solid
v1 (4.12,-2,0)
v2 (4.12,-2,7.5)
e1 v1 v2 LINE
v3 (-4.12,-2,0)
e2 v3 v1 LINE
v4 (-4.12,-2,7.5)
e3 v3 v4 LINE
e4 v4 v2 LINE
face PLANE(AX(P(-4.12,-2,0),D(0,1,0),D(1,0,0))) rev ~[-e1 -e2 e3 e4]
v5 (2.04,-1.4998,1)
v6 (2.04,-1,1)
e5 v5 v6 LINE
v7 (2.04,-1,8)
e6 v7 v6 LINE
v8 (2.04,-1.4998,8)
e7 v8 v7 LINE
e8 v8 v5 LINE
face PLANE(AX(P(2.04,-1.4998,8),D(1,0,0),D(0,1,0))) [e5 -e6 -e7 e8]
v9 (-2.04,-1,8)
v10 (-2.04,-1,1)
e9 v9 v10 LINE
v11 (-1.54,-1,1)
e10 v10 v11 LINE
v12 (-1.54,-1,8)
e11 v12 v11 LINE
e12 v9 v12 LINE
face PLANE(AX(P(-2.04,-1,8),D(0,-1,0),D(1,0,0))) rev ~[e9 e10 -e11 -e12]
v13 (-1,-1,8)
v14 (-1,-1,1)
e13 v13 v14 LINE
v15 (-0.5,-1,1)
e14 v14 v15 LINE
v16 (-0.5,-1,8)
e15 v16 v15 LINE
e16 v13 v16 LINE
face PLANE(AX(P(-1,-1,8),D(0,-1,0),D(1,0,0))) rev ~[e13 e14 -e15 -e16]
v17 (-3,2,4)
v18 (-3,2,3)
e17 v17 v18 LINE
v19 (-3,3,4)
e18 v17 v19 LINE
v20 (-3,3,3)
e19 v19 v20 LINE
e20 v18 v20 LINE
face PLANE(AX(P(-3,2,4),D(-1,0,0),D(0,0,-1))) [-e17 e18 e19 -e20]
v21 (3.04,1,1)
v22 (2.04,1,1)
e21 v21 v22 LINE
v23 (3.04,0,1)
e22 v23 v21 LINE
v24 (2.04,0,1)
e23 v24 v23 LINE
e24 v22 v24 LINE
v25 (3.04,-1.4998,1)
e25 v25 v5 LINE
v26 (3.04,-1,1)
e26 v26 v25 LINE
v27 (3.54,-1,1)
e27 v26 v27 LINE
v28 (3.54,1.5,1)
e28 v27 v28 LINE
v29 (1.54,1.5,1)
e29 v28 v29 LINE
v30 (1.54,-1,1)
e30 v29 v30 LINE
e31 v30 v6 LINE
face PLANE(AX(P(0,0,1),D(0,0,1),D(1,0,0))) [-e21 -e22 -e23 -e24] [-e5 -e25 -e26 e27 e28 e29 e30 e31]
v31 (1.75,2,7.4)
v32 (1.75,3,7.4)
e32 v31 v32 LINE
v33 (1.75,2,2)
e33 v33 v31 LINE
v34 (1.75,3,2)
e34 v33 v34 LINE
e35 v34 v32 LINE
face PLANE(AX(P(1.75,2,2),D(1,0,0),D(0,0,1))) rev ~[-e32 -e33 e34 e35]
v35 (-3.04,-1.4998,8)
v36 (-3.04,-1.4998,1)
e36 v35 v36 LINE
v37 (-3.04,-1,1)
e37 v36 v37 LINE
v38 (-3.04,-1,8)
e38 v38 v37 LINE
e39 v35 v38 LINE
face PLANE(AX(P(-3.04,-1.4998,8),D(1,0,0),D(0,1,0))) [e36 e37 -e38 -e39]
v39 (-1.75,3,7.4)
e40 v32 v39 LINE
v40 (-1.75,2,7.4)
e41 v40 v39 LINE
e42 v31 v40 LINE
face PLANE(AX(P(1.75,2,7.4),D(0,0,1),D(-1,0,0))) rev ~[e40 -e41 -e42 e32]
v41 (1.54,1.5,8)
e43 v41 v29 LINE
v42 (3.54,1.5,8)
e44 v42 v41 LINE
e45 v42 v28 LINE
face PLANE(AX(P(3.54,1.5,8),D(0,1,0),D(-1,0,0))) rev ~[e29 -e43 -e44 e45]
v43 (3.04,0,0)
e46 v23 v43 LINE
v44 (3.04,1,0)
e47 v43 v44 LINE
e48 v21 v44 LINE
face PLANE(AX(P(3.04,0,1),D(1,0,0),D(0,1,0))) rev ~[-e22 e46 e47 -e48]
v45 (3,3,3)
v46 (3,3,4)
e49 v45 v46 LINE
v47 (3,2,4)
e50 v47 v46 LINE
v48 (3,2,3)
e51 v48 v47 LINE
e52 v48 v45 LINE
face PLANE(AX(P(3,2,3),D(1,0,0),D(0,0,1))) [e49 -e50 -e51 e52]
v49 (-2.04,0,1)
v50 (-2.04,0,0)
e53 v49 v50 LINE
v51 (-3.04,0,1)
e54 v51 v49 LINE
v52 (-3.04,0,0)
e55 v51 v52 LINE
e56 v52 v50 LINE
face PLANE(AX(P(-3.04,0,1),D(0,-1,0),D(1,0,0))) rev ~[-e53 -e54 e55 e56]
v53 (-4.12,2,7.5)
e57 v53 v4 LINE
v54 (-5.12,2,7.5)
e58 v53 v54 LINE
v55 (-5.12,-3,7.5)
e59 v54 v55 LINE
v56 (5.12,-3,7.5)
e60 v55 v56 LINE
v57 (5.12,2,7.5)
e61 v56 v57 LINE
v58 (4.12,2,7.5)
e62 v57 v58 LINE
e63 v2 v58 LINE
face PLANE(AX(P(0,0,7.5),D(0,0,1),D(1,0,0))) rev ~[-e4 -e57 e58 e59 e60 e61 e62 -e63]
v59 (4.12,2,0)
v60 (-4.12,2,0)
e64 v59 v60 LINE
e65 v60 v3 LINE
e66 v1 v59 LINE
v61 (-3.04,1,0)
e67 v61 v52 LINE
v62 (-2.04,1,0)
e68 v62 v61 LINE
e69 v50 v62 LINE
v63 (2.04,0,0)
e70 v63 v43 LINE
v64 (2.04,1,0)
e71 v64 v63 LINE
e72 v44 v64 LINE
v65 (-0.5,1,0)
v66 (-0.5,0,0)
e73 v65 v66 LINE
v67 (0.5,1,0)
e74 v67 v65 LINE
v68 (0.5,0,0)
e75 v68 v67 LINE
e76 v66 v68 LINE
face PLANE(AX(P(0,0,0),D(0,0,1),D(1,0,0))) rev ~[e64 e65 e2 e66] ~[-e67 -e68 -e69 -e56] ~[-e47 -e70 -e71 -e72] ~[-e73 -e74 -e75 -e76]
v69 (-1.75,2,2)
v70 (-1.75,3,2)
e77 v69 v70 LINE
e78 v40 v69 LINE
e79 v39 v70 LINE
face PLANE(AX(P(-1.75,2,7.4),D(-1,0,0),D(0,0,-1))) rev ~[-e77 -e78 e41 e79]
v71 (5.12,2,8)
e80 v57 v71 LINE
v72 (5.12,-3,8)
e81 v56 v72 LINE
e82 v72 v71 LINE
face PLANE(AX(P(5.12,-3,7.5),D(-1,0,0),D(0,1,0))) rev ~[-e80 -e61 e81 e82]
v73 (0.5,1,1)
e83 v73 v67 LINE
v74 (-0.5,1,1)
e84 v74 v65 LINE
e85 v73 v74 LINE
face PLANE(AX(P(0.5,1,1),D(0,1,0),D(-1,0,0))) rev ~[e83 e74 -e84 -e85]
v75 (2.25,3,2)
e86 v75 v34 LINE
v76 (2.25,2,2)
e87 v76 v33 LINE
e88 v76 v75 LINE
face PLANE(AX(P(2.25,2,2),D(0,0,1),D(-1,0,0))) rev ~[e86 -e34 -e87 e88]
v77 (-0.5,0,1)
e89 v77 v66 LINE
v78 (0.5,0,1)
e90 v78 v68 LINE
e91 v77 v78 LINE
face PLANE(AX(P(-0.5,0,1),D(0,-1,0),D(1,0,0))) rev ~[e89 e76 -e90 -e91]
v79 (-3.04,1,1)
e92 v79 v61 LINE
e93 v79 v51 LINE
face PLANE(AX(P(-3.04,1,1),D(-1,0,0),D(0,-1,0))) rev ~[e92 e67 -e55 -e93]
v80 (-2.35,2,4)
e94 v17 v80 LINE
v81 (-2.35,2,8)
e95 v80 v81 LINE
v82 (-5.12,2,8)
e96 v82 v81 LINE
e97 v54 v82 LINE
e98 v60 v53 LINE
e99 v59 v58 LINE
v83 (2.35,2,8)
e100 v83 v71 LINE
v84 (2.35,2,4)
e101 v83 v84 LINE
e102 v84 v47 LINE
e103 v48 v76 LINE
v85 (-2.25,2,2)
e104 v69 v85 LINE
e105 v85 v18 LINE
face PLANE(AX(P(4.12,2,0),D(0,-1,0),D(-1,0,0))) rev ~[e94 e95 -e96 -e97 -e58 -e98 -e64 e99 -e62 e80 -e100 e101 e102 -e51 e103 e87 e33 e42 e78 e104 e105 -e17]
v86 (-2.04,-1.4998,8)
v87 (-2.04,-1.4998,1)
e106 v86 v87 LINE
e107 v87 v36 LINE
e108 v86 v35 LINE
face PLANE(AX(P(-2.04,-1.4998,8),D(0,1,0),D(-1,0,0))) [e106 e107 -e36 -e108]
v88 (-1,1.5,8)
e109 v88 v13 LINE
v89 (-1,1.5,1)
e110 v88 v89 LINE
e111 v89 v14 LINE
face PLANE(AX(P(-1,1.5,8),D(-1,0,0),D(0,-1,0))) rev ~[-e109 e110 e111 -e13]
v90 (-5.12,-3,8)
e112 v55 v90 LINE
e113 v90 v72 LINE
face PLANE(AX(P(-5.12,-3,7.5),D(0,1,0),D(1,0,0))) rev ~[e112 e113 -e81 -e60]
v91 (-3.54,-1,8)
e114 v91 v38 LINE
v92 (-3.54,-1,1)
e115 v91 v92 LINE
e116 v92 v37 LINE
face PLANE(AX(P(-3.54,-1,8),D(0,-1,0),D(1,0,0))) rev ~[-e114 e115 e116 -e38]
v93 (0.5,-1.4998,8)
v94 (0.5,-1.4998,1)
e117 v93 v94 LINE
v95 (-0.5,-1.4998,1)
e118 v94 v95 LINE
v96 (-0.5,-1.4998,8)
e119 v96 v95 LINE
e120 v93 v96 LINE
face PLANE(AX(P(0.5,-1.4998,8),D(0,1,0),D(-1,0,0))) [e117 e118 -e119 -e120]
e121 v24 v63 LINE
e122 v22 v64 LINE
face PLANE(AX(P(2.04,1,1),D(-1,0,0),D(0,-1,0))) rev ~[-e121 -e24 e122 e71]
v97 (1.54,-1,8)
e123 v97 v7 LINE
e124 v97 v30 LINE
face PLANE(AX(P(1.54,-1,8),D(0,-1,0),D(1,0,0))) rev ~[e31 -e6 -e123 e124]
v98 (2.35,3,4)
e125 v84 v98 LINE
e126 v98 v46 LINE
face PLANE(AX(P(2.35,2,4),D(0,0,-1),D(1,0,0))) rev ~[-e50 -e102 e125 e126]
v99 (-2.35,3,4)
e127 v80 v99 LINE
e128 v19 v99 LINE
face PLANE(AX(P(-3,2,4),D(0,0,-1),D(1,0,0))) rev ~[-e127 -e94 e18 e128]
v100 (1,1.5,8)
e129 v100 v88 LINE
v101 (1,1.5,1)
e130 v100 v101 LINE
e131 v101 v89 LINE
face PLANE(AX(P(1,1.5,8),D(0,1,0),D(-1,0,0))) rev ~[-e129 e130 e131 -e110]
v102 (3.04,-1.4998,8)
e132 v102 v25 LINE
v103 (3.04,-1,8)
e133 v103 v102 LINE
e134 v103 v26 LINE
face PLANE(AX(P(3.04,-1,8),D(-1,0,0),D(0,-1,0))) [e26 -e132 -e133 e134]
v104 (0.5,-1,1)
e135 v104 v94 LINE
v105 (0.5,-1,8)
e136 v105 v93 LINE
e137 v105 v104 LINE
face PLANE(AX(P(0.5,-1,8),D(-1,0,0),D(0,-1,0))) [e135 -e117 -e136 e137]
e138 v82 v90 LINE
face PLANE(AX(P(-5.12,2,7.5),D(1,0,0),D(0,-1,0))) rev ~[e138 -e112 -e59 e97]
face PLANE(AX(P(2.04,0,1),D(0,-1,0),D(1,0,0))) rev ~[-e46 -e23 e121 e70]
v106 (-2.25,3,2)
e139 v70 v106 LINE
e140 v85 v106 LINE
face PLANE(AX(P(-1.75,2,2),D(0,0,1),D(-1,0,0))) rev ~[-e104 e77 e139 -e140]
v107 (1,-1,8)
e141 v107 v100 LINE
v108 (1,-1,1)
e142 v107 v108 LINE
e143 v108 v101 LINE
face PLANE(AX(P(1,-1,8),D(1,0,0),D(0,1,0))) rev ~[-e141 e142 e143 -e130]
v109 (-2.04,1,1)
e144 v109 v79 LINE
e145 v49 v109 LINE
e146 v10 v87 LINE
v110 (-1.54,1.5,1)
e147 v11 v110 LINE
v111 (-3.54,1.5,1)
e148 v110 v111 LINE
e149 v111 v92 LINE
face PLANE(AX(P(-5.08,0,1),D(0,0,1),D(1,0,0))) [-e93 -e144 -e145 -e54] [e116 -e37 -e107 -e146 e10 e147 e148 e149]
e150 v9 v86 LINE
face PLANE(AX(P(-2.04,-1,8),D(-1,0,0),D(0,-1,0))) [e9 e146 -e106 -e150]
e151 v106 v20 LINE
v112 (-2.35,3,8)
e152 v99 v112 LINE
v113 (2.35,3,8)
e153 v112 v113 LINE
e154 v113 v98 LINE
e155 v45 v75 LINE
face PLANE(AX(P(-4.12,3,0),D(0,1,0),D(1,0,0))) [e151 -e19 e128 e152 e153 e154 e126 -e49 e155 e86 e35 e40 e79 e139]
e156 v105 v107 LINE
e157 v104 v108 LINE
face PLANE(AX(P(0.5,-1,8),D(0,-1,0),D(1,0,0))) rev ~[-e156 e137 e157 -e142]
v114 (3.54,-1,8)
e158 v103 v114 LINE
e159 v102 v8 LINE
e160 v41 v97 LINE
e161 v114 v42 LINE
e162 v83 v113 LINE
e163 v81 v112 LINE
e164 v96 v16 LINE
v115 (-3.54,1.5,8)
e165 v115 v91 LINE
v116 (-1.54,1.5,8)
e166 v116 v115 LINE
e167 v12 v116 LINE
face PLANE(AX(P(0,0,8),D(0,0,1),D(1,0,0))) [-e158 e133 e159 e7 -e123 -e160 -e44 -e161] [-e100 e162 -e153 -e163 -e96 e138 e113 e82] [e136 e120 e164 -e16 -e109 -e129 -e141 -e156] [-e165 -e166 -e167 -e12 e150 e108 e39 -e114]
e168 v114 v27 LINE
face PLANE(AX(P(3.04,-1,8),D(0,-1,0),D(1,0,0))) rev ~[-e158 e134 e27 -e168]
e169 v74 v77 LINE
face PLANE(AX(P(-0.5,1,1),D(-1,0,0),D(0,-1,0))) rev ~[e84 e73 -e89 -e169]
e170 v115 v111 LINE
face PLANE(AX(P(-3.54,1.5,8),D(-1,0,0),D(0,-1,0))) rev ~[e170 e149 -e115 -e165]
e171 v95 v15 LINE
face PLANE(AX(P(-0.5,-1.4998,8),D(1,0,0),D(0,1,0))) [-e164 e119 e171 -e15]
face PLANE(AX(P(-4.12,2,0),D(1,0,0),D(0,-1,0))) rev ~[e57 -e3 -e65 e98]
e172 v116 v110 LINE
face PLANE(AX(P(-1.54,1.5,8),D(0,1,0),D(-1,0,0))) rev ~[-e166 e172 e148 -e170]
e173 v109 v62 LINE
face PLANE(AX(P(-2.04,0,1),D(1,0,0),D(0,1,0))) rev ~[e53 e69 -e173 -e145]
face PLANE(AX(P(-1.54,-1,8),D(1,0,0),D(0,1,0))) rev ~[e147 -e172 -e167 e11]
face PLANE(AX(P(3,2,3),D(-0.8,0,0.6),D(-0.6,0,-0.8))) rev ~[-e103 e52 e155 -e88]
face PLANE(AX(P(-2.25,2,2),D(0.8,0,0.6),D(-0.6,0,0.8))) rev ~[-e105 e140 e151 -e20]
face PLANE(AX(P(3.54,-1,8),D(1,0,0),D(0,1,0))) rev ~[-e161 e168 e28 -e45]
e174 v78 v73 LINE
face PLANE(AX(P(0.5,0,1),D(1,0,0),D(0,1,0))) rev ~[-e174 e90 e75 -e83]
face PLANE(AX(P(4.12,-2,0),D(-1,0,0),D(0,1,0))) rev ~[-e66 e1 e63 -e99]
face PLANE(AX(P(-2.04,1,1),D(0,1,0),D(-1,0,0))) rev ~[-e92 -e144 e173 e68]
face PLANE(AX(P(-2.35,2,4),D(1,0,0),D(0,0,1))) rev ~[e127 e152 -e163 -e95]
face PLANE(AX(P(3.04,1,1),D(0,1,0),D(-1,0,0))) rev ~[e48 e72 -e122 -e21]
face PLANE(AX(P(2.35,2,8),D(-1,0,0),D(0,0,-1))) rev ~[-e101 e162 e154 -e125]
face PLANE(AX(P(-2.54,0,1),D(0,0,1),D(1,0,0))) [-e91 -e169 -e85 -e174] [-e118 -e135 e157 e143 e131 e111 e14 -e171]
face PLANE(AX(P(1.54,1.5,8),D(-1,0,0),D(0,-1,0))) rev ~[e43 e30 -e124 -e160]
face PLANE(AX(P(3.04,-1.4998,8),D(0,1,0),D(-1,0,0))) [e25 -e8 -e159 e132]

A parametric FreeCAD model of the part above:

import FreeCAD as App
import Part
import Sketcher
from FreeCAD import Vector
Q = App.Units.Quantity

doc = App.newDocument("Part")
body = doc.addObject("PartDesign::Body", "Body")

# Sketch on XY plane
sketch1 = body.newObject("Sketcher::SketchObject", "Sketch")
sketch1.AttachmentSupport = (doc.getObject("XY_Plane"), [""])
sketch1.MapMode = "FlatFace"
sketch1.addGeometry([
    Part.LineSegment(Vector(-4.12, 2, 0), Vector(-4.12, -2, 0)),
    Part.LineSegment(Vector(-4.12, -2, 0), Vector(4.12, -2, 0)),
    Part.LineSegment(Vector(4.12, -2, 0), Vector(4.12, 2, 0)),
    Part.LineSegment(Vector(4.12, 2, 0), Vector(-4.12, 2, 0)),
], False)
sketch1.addConstraint([
    Sketcher.Constraint("Coincident", 0, 2, 1, 1),
    Sketcher.Constraint("Coincident", 1, 2, 2, 1),
    Sketcher.Constraint("Coincident", 2, 2, 3, 1),
    Sketcher.Constraint("Coincident", 3, 2, 0, 1),
    Sketcher.Constraint("Vertical", 0),
    Sketcher.Constraint("Horizontal", 1),
    Sketcher.Constraint("Vertical", 2),
    Sketcher.Constraint("Horizontal", 3),
    Sketcher.Constraint("Symmetric", 0, 2, 2, 2, -1, 1),
    Sketcher.Constraint("DistanceY", 0, 2, 0, 1, Q("4 mm")),
    Sketcher.Constraint("DistanceX", 1, 1, 1, 2, Q("8.24 mm")),
])
pad1 = body.newObject("PartDesign::Pad", "Pad")
pad1.Profile = sketch1
pad1.Length = 7.5

# Sketch on XY plane
sketch2 = body.newObject("Sketcher::SketchObject", "Sketch001")
sketch2.AttachmentSupport = (doc.getObject("XY_Plane"), [""])
sketch2.MapMode = "FlatFace"
sketch2.AttachmentOffset = App.Placement(Vector(0, 0, 7.5), App.Rotation())
sketch2.addGeometry([
    Part.LineSegment(Vector(-5.12, 2, 0), Vector(-5.12, -3, 0)),
    Part.LineSegment(Vector(-5.12, -3, 0), Vector(5.12, -3, 0)),
    Part.LineSegment(Vector(5.12, -3, 0), Vector(5.12, 2, 0)),
    Part.LineSegment(Vector(5.12, 2, 0), Vector(-5.12, 2, 0)),
], False)
sketch2.addConstraint([
    Sketcher.Constraint("Coincident", 0, 2, 1, 1),
    Sketcher.Constraint("Coincident", 1, 2, 2, 1),
    Sketcher.Constraint("Coincident", 2, 2, 3, 1),
    Sketcher.Constraint("Coincident", 3, 2, 0, 1),
    Sketcher.Constraint("Vertical", 0),
    Sketcher.Constraint("Horizontal", 1),
    Sketcher.Constraint("Vertical", 2),
    Sketcher.Constraint("Horizontal", 3),
    Sketcher.Constraint("DistanceY", 0, 2, 0, 1, Q("5 mm")),
    Sketcher.Constraint("DistanceY", 0, 2, -1, 1, Q("3 mm")),
    Sketcher.Constraint("DistanceX", 1, 1, 1, 2, Q("10.24 mm")),
    Sketcher.Constraint("DistanceX", 0, 2, -1, 1, Q("5.12 mm")),
])
pad2 = body.newObject("PartDesign::Pad", "Pad001")
pad2.Profile = sketch2
pad2.Length = 0.5

# Sketch on XZ plane
sketch3 = body.newObject("Sketcher::SketchObject", "Sketch002")
sketch3.AttachmentSupport = (doc.getObject("XZ_Plane"), [""])
sketch3.MapMode = "FlatFace"
sketch3.AttachmentOffset = App.Placement(Vector(0, 0, -2), App.Rotation())
sketch3.addGeometry([
    Part.LineSegment(Vector(2.25, 2, 0), Vector(1.75, 2, 0)),  # 0
    Part.LineSegment(Vector(1.75, 2, 0), Vector(1.75, 7.4, 0)),  # 1
    Part.LineSegment(Vector(1.75, 7.4, 0), Vector(-1.75, 7.4, 0)),  # 2
    Part.LineSegment(Vector(-1.75, 7.4, 0), Vector(-1.75, 2, 0)),  # 3
    Part.LineSegment(Vector(-1.75, 2, 0), Vector(-2.25, 2, 0)),  # 4
    Part.LineSegment(Vector(-2.25, 2, 0), Vector(-3, 3, 0)),  # 5
    Part.LineSegment(Vector(-3, 3, 0), Vector(-3, 4, 0)),  # 6
    Part.LineSegment(Vector(-3, 4, 0), Vector(-2.35, 4, 0)),  # 7
    Part.LineSegment(Vector(-2.35, 4, 0), Vector(-2.35, 8, 0)),  # 8
    Part.LineSegment(Vector(-2.35, 8, 0), Vector(2.35, 8, 0)),  # 9
    Part.LineSegment(Vector(2.35, 8, 0), Vector(2.35, 4, 0)),  # 10
    Part.LineSegment(Vector(2.35, 4, 0), Vector(3, 4, 0)),  # 11
    Part.LineSegment(Vector(3, 4, 0), Vector(3, 3, 0)),  # 12
    Part.LineSegment(Vector(3, 3, 0), Vector(2.25, 2, 0)),  # 13
], False)
sketch3.addConstraint([
    Sketcher.Constraint("Coincident", 0, 2, 1, 1),
    Sketcher.Constraint("Coincident", 1, 2, 2, 1),
    Sketcher.Constraint("Coincident", 2, 2, 3, 1),
    Sketcher.Constraint("Coincident", 3, 2, 4, 1),
    Sketcher.Constraint("Coincident", 4, 2, 5, 1),
    Sketcher.Constraint("Coincident", 5, 2, 6, 1),
    Sketcher.Constraint("Coincident", 6, 2, 7, 1),
    Sketcher.Constraint("Coincident", 7, 2, 8, 1),
    Sketcher.Constraint("Coincident", 8, 2, 9, 1),
    Sketcher.Constraint("Coincident", 9, 2, 10, 1),
    Sketcher.Constraint("Coincident", 10, 2, 11, 1),
    Sketcher.Constraint("Coincident", 11, 2, 12, 1),
    Sketcher.Constraint("Coincident", 12, 2, 13, 1),
    Sketcher.Constraint("Coincident", 13, 2, 0, 1),
    Sketcher.Constraint("Horizontal", 0),
    Sketcher.Constraint("Vertical", 1),
    Sketcher.Constraint("Horizontal", 2),
    Sketcher.Constraint("Vertical", 3),
    Sketcher.Constraint("Horizontal", 4),
    Sketcher.Constraint("Vertical", 6),
    Sketcher.Constraint("Horizontal", 7),
    Sketcher.Constraint("Vertical", 8),
    Sketcher.Constraint("Horizontal", 9),
    Sketcher.Constraint("Vertical", 10),
    Sketcher.Constraint("Horizontal", 11),
    Sketcher.Constraint("Vertical", 12),
    Sketcher.Constraint("Symmetric", 0, 2, 3, 2, -2),
    Sketcher.Constraint("Symmetric", 7, 2, 10, 2, -2),
    Sketcher.Constraint("Symmetric", 5, 2, 12, 2, -2),
    Sketcher.Constraint("Equal", 0, 4),
    Sketcher.Constraint("DistanceY", 6, 1, 6, 2, Q("1 mm")),
    Sketcher.Constraint("DistanceY", 8, 1, 8, 2, Q("4 mm")),
    Sketcher.Constraint("DistanceX", 0, 2, 0, 1, Q("0.5 mm")),
    Sketcher.Constraint("DistanceX", 2, 2, 2, 1, Q("3.5 mm")),
    Sketcher.Constraint("DistanceY", -1, 1, 6, 2, Q("4 mm")),
    Sketcher.Constraint("DistanceY", 4, 2, 5, 2, Q("1 mm")),
    Sketcher.Constraint("DistanceX", 7, 1, 7, 2, Q("0.65 mm")),
    Sketcher.Constraint("DistanceX", 7, 2, 3, 2, Q("0.6 mm")),
    Sketcher.Constraint("DistanceY", 2, 2, 8, 2, Q("0.6 mm")),
])
pad3 = body.newObject("PartDesign::Pad", "Pad002")
pad3.Profile = sketch3
pad3.Length = 1
pad3.Reversed = True

# Sketch on XY plane
sketch4 = body.newObject("Sketcher::SketchObject", "Sketch003")
sketch4.AttachmentSupport = (doc.getObject("XY_Plane"), [""])
sketch4.MapMode = "FlatFace"
sketch4.AttachmentOffset = App.Placement(Vector(0, 0, 8), App.Rotation())
sketch4.addGeometry([
    Part.LineSegment(Vector(3.04, -1, 0), Vector(3.54, -1, 0)),  # 0
    Part.LineSegment(Vector(3.54, -1, 0), Vector(3.54, 1.5, 0)),  # 1
    Part.LineSegment(Vector(3.54, 1.5, 0), Vector(1.54, 1.5, 0)),  # 2
    Part.LineSegment(Vector(1.54, 1.5, 0), Vector(1.54, -1, 0)),  # 3
    Part.LineSegment(Vector(1.54, -1, 0), Vector(2.04, -1, 0)),  # 4
    Part.LineSegment(Vector(2.04, -1, 0), Vector(2.04, -1.4998, 0)),  # 5
    Part.LineSegment(Vector(2.04, -1.4998, 0), Vector(3.04, -1.4998, 0)),  # 6
    Part.LineSegment(Vector(3.04, -1.4998, 0), Vector(3.04, -1, 0)),  # 7
], False)
sketch4.addConstraint([
    Sketcher.Constraint("Coincident", 0, 2, 1, 1),
    Sketcher.Constraint("Coincident", 1, 2, 2, 1),
    Sketcher.Constraint("Coincident", 2, 2, 3, 1),
    Sketcher.Constraint("Coincident", 3, 2, 4, 1),
    Sketcher.Constraint("Coincident", 4, 2, 5, 1),
    Sketcher.Constraint("Coincident", 5, 2, 6, 1),
    Sketcher.Constraint("Coincident", 6, 2, 7, 1),
    Sketcher.Constraint("Coincident", 7, 2, 0, 1),
    Sketcher.Constraint("Horizontal", 0),
    Sketcher.Constraint("Vertical", 1),
    Sketcher.Constraint("Horizontal", 2),
    Sketcher.Constraint("Vertical", 3),
    Sketcher.Constraint("Horizontal", 4),
    Sketcher.Constraint("Vertical", 5),
    Sketcher.Constraint("Horizontal", 6),
    Sketcher.Constraint("Vertical", 7),
    Sketcher.Constraint("Horizontal", 0, 2, 3, 2),
    Sketcher.Constraint("Equal", 0, 4),
    Sketcher.Constraint("Equal", 4, 5),
    Sketcher.Constraint("DistanceX", 2, 2, 2, 1, Q("2 mm")),
    Sketcher.Constraint("DistanceX", 6, 1, 6, 2, Q("1 mm")),
    Sketcher.Constraint("DistanceY", 1, 1, 1, 2, Q("2.5 mm")),
    Sketcher.Constraint("DistanceY", 0, 2, -1, 1, Q("1 mm")),
    Sketcher.Constraint("DistanceX", -1, 1, 0, 2, Q("3.54 mm")),
])
pocket1 = body.newObject("PartDesign::Pocket", "Pocket")
pocket1.Profile = sketch4
pocket1.Length = 7

# Sketch on XY plane
sketch5 = body.newObject("Sketcher::SketchObject", "Sketch004")
sketch5.AttachmentSupport = (doc.getObject("XY_Plane"), [""])
sketch5.MapMode = "FlatFace"
sketch5.AttachmentOffset = App.Placement(Vector(0, 0, 1), App.Rotation())
sketch5.addGeometry([
    Part.LineSegment(Vector(2.04, 1, 0), Vector(2.04, 0, 0)),
    Part.LineSegment(Vector(2.04, 0, 0), Vector(3.04, 0, 0)),
    Part.LineSegment(Vector(3.04, 0, 0), Vector(3.04, 1, 0)),
    Part.LineSegment(Vector(3.04, 1, 0), Vector(2.04, 1, 0)),
], False)
sketch5.addConstraint([
    Sketcher.Constraint("Coincident", 0, 2, 1, 1),
    Sketcher.Constraint("Coincident", 1, 2, 2, 1),
    Sketcher.Constraint("Coincident", 2, 2, 3, 1),
    Sketcher.Constraint("Coincident", 3, 2, 0, 1),
    Sketcher.Constraint("Vertical", 0),
    Sketcher.Constraint("Horizontal", 1),
    Sketcher.Constraint("Vertical", 2),
    Sketcher.Constraint("Horizontal", 3),
    Sketcher.Constraint("PointOnObject", 0, 2, -1),
    Sketcher.Constraint("Equal", 3, 0),
    Sketcher.Constraint("DistanceX", 1, 1, 1, 2, Q("1 mm")),
    Sketcher.Constraint("DistanceX", -1, 1, 0, 2, Q("2.04 mm")),
])
pocket2 = body.newObject("PartDesign::Pocket", "Pocket001")
pocket2.Profile = sketch5
pocket2.Type = "ThroughAll"
doc.recompute()

linearpattern = body.newObject("PartDesign::LinearPattern", "LinearPattern")
linearpattern.Originals = [pocket1, pocket2]
linearpattern.Direction = (doc.getObject("X_Axis"), [""])
linearpattern.Mode = "offset"
linearpattern.Offset = 2.54
linearpattern.Occurrences = 3
linearpattern.Reversed = True
body.Tip = linearpattern

doc.recompute()
